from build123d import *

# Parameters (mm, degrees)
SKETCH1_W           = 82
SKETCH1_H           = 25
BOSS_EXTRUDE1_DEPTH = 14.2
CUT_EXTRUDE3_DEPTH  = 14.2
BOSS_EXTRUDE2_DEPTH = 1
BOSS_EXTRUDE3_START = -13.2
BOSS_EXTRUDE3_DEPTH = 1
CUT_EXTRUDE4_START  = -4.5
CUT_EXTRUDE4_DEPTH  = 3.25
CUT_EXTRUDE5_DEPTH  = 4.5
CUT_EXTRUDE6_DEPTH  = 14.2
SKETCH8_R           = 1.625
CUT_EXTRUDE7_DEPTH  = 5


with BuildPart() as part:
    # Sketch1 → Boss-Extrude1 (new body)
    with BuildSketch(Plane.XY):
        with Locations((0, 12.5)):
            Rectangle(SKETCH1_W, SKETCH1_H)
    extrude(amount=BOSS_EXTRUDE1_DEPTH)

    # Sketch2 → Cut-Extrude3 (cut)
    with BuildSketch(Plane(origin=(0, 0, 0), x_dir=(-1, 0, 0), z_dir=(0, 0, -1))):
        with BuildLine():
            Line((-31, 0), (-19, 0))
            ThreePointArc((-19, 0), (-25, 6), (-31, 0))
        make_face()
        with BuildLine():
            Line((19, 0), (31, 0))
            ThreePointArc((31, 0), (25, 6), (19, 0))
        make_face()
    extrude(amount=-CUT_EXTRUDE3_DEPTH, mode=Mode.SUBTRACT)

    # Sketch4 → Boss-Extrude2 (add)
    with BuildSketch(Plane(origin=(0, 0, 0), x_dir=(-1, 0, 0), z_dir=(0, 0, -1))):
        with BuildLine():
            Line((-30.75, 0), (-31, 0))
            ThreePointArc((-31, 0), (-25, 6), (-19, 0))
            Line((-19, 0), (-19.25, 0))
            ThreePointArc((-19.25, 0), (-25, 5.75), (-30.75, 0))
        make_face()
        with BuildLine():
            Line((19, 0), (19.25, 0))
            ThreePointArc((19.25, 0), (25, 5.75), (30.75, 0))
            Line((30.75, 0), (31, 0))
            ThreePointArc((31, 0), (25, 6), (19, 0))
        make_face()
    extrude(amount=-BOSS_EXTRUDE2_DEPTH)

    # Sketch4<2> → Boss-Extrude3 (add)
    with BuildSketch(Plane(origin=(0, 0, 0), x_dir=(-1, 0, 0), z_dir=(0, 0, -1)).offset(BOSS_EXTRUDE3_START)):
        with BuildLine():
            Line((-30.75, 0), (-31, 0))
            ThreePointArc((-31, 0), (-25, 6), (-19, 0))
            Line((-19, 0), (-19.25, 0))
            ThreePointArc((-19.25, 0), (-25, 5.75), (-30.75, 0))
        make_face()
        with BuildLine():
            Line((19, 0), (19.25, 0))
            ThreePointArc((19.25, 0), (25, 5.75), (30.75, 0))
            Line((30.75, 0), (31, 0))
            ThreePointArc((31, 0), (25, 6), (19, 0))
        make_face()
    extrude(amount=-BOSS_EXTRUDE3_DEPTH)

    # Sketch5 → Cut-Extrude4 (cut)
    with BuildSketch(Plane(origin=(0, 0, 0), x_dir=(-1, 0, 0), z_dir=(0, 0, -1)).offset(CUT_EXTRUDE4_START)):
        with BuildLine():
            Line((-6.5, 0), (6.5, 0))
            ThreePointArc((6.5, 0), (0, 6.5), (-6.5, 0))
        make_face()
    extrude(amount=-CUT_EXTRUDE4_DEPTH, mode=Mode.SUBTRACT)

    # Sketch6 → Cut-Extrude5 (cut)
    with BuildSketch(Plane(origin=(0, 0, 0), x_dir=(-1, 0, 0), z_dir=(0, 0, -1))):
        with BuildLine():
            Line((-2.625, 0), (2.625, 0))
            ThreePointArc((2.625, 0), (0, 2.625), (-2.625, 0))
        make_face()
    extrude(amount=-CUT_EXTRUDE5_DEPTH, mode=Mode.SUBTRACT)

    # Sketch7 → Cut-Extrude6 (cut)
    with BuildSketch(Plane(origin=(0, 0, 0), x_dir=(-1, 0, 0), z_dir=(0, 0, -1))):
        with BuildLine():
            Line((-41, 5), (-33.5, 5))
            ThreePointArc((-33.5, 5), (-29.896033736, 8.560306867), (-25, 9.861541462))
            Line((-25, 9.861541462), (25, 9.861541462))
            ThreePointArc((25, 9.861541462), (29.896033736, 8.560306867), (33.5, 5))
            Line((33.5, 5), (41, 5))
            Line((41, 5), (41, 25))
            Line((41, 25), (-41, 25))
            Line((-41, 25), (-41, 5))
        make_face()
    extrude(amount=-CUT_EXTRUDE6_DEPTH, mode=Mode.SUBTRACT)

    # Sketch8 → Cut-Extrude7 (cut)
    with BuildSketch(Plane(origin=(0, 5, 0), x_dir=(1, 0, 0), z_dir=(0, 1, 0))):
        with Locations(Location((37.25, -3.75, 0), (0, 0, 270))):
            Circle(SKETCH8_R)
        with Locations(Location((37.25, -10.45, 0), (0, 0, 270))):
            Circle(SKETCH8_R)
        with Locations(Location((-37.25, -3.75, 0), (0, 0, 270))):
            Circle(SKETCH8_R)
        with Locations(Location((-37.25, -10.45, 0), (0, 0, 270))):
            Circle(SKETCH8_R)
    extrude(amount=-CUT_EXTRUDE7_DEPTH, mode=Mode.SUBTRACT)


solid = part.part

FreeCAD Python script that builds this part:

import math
import FreeCAD as App
import Part
import Sketcher
from FreeCAD import Vector
Q = App.Units.Quantity


def add_polygon(sketch, points):
    """Adds a closed chain of lines whose ends are joined by coincident constraints."""
    first, n = sketch.GeometryCount, len(points)
    for a, b in zip(points, points[1:] + points[:1]):
        sketch.addGeometry(Part.LineSegment(App.Vector(*a, 0), App.Vector(*b, 0)), False)
    for i in range(n):
        sketch.addConstraint(Sketcher.Constraint("Coincident", first + i, 2, first + (i + 1) % n, 1))

doc = App.newDocument("Part")
body = doc.addObject("PartDesign::Body", "Body")

# Sketch on XY plane
sketch1 = body.newObject("Sketcher::SketchObject", "Sketch")
sketch1.AttachmentSupport = (doc.getObject("XY_Plane"), [""])
sketch1.MapMode = "FlatFace"
add_polygon(sketch1, [(-41, 25), (-41, 0), (41, 0), (41, 25)])  # lines 0-3
sketch1.addConstraint([
    Sketcher.Constraint("Vertical", 0),
    Sketcher.Constraint("Horizontal", 1),
    Sketcher.Constraint("Vertical", 2),
    Sketcher.Constraint("Horizontal", 3),
    Sketcher.Constraint("Symmetric", 0, 2, 1, 2, -1, 1),
    Sketcher.Constraint("DistanceX", 1, 1, 1, 2, Q("82 mm")),
    Sketcher.Constraint("DistanceY", 0, 2, 0, 1, Q("25 mm")),
])
pad1 = body.newObject("PartDesign::Pad", "Pad")
pad1.Profile = sketch1
pad1.Length = 14.2

# Sketch on XY plane
sketch2 = body.newObject("Sketcher::SketchObject", "Sketch001")
sketch2.AttachmentSupport = (doc.getObject("XY_Plane"), [""])
sketch2.MapMode = "FlatFace"
sketch2.addGeometry([
    Part.LineSegment(Vector(31, 0, 0), Vector(19, 0, 0)),
    Part.ArcOfCircle(Part.Circle(Vector(25, 0, 0), Vector(0, 0, 1), 6), math.radians(0), math.radians(180)),
    Part.LineSegment(Vector(-19, 0, 0), Vector(-31, 0, 0)),
    Part.ArcOfCircle(Part.Circle(Vector(-25, 0, 0), Vector(0, 0, 1), 6), math.radians(0), math.radians(180)),
], False)
sketch2.addConstraint([
    Sketcher.Constraint("Coincident", 0, 1, 1, 1),
    Sketcher.Constraint("Coincident", 1, 2, 0, 2),
    Sketcher.Constraint("Coincident", 2, 1, 3, 1),
    Sketcher.Constraint("Coincident", 3, 2, 2, 2),
    Sketcher.Constraint("Horizontal", 0),
    Sketcher.Constraint("Horizontal", 2),
    Sketcher.Constraint("Equal", 1, 3),
    Sketcher.Constraint("Symmetric", 1, 3, 3, 3, -1, 1),
    Sketcher.Constraint("PointOnObject", 1, 3, -1),
    Sketcher.Constraint("PointOnObject", 0, 1, -1),
    Sketcher.Constraint("PointOnObject", 2, 1, -1),
    Sketcher.Constraint("Radius", 1, Q("6 mm")),
    Sketcher.Constraint("DistanceX", -1, 1, 1, 3, Q("25 mm")),
])
pocket1 = body.newObject("PartDesign::Pocket", "Pocket")
pocket1.Profile = sketch2
pocket1.Length = 14.2
pocket1.Reversed = True

# Sketch on XY plane
sketch3 = body.newObject("Sketcher::SketchObject", "Sketch002")
sketch3.AttachmentSupport = (doc.getObject("XY_Plane"), [""])
sketch3.MapMode = "FlatFace"
sketch3.addGeometry([
    Part.LineSegment(Vector(31, 0, 0), Vector(30.75, 0, 0)),  # 0
    Part.ArcOfCircle(Part.Circle(Vector(25, 0, 0), Vector(0, 0, 1), 5.75), math.radians(0), math.radians(180)),  # 1
    Part.LineSegment(Vector(19.25, 0, 0), Vector(19, 0, 0)),  # 2
    Part.ArcOfCircle(Part.Circle(Vector(25, 0, 0), Vector(0, 0, 1), 6), math.radians(0), math.radians(180)),  # 3
    Part.LineSegment(Vector(-19, 0, 0), Vector(-19.25, 0, 0)),  # 4
    Part.ArcOfCircle(Part.Circle(Vector(-25, 0, 0), Vector(0, 0, 1), 5.75), math.radians(0), math.radians(180)),  # 5
    Part.LineSegment(Vector(-30.75, 0, 0), Vector(-31, 0, 0)),  # 6
    Part.ArcOfCircle(Part.Circle(Vector(-25, 0, 0), Vector(0, 0, 1), 6), math.radians(0), math.radians(180)),  # 7
], False)
sketch3.addConstraint([
    Sketcher.Constraint("Coincident", 0, 2, 1, 1),
    Sketcher.Constraint("Coincident", 1, 2, 2, 1),
    Sketcher.Constraint("Coincident", 2, 2, 3, 2),
    Sketcher.Constraint("Coincident", 3, 1, 0, 1),
    Sketcher.Constraint("Coincident", 4, 2, 5, 1),
    Sketcher.Constraint("Coincident", 5, 2, 6, 1),
    Sketcher.Constraint("Coincident", 6, 2, 7, 2),
    Sketcher.Constraint("Coincident", 7, 1, 4, 1),
    Sketcher.Constraint("Horizontal", 0),
    Sketcher.Constraint("Horizontal", 2),
    Sketcher.Constraint("Horizontal", 4),
    Sketcher.Constraint("Horizontal", 6),
    Sketcher.Constraint("Coincident", 3, 3, 1, 3),
    Sketcher.Constraint("Coincident", 7, 3, 5, 3),
    Sketcher.Constraint("Equal", 1, 5),
    Sketcher.Constraint("Equal", 3, 7),
    Sketcher.Constraint("Symmetric", 1, 3, 5, 3, -1, 1),
    Sketcher.Constraint("PointOnObject", 1, 3, -1),
    Sketcher.Constraint("PointOnObject", 0, 2, -1),
    Sketcher.Constraint("PointOnObject", 1, 2, -1),
    Sketcher.Constraint("PointOnObject", 4, 2, -1),
    Sketcher.Constraint("PointOnObject", 5, 2, -1),
    Sketcher.Constraint("Radius", 3, Q("6 mm")),
    Sketcher.Constraint("Radius", 1, Q("5.75 mm")),
    Sketcher.Constraint("DistanceX", -1, 1, 1, 3, Q("25 mm")),
])
pad2 = body.newObject("PartDesign::Pad", "Pad001")
pad2.Profile = sketch3
pad2.Length = 1

# Sketch on XY plane
sketch4 = body.newObject("Sketcher::SketchObject", "Sketch003")
sketch4.AttachmentSupport = (doc.getObject("XY_Plane"), [""])
sketch4.MapMode = "FlatFace"
sketch4.AttachmentOffset = App.Placement(Vector(0, 0, 13.2), App.Rotation())
sketch4.addGeometry([
    Part.LineSegment(Vector(31, 0, 0), Vector(30.75, 0, 0)),  # 0
    Part.ArcOfCircle(Part.Circle(Vector(25, 0, 0), Vector(0, 0, 1), 5.75), math.radians(0), math.radians(180)),  # 1
    Part.LineSegment(Vector(19.25, 0, 0), Vector(19, 0, 0)),  # 2
    Part.ArcOfCircle(Part.Circle(Vector(25, 0, 0), Vector(0, 0, 1), 6), math.radians(0), math.radians(180)),  # 3
    Part.LineSegment(Vector(-19, 0, 0), Vector(-19.25, 0, 0)),  # 4
    Part.ArcOfCircle(Part.Circle(Vector(-25, 0, 0), Vector(0, 0, 1), 5.75), math.radians(0), math.radians(180)),  # 5
    Part.LineSegment(Vector(-30.75, 0, 0), Vector(-31, 0, 0)),  # 6
    Part.ArcOfCircle(Part.Circle(Vector(-25, 0, 0), Vector(0, 0, 1), 6), math.radians(0), math.radians(180)),  # 7
], False)
sketch4.addConstraint([
    Sketcher.Constraint("Coincident", 0, 2, 1, 1),
    Sketcher.Constraint("Coincident", 1, 2, 2, 1),
    Sketcher.Constraint("Coincident", 2, 2, 3, 2),
    Sketcher.Constraint("Coincident", 3, 1, 0, 1),
    Sketcher.Constraint("Coincident", 4, 2, 5, 1),
    Sketcher.Constraint("Coincident", 5, 2, 6, 1),
    Sketcher.Constraint("Coincident", 6, 2, 7, 2),
    Sketcher.Constraint("Coincident", 7, 1, 4, 1),
    Sketcher.Constraint("Horizontal", 0),
    Sketcher.Constraint("Horizontal", 2),
    Sketcher.Constraint("Horizontal", 4),
    Sketcher.Constraint("Horizontal", 6),
    Sketcher.Constraint("Coincident", 3, 3, 1, 3),
    Sketcher.Constraint("Coincident", 7, 3, 5, 3),
    Sketcher.Constraint("Equal", 1, 5),
    Sketcher.Constraint("Equal", 3, 7),
    Sketcher.Constraint("Symmetric", 1, 3, 5, 3, -1, 1),
    Sketcher.Constraint("PointOnObject", 1, 3, -1),
    Sketcher.Constraint("PointOnObject", 0, 2, -1),
    Sketcher.Constraint("PointOnObject", 1, 2, -1),
    Sketcher.Constraint("PointOnObject", 4, 2, -1),
    Sketcher.Constraint("PointOnObject", 5, 2, -1),
    Sketcher.Constraint("Radius", 3, Q("6 mm")),
    Sketcher.Constraint("Radius", 1, Q("5.75 mm")),
    Sketcher.Constraint("DistanceX", -1, 1, 1, 3, Q("25 mm")),
])
pad3 = body.newObject("PartDesign::Pad", "Pad002")
pad3.Profile = sketch4
pad3.Length = 1

# Sketch on XY plane
sketch5 = body.newObject("Sketcher::SketchObject", "Sketch004")
sketch5.AttachmentSupport = (doc.getObject("XY_Plane"), [""])
sketch5.MapMode = "FlatFace"
sketch5.AttachmentOffset = App.Placement(Vector(0, 0, 4.5), App.Rotation())
sketch5.addGeometry([
    Part.LineSegment(Vector(6.5, 0, 0), Vector(-6.5, 0, 0)),
    Part.ArcOfCircle(Part.Circle(Vector(0, 0, 0), Vector(0, 0, 1), 6.5), math.radians(0), math.radians(180)),
], False)
sketch5.addConstraint([
    Sketcher.Constraint("Coincident", 0, 1, 1, 1),
    Sketcher.Constraint("Coincident", 1, 2, 0, 2),
    Sketcher.Constraint("Horizontal", 0),
    Sketcher.Constraint("Coincident", 1, 3, -1, 1),
    Sketcher.Constraint("PointOnObject", 0, 1, -1),
    Sketcher.Constraint("Radius", 1, Q("6.5 mm")),
])
pocket2 = body.newObject("PartDesign::Pocket", "Pocket001")
pocket2.Profile = sketch5
pocket2.Length = 3.25
pocket2.Reversed = True

# Sketch on XY plane
sketch6 = body.newObject("Sketcher::SketchObject", "Sketch005")
sketch6.AttachmentSupport = (doc.getObject("XY_Plane"), [""])
sketch6.MapMode = "FlatFace"
sketch6.addGeometry([
    Part.LineSegment(Vector(2.625, 0, 0), Vector(-2.625, 0, 0)),
    Part.ArcOfCircle(Part.Circle(Vector(0, 0, 0), Vector(0, 0, 1), 2.625), math.radians(0), math.radians(180)),
], False)
sketch6.addConstraint([
    Sketcher.Constraint("Coincident", 0, 1, 1, 1),
    Sketcher.Constraint("Coincident", 1, 2, 0, 2),
    Sketcher.Constraint("Horizontal", 0),
    Sketcher.Constraint("Coincident", 1, 3, -1, 1),
    Sketcher.Constraint("PointOnObject", 0, 1, -1),
    Sketcher.Constraint("Radius", 1, Q("2.625 mm")),
])
pocket3 = body.newObject("PartDesign::Pocket", "Pocket002")
pocket3.Profile = sketch6
pocket3.Length = 4.5
pocket3.Reversed = True

# Sketch on XY plane
sketch7 = body.newObject("Sketcher::SketchObject", "Sketch006")
sketch7.AttachmentSupport = (doc.getObject("XY_Plane"), [""])
sketch7.MapMode = "FlatFace"
sketch7.addGeometry([
    Part.LineSegment(Vector(41, 5, 0), Vector(33.5, 5, 0)),  # 0
    Part.ArcOfCircle(Part.Circle(Vector(25, 0, 0), Vector(0, 0, 1), 9.861541), math.radians(30.465545), math.radians(90)),  # 1
    Part.LineSegment(Vector(25, 9.861541, 0), Vector(-25, 9.861541, 0)),  # 2
    Part.ArcOfCircle(Part.Circle(Vector(-25, 0, 0), Vector(0, 0, 1), 9.861541), math.radians(90), math.radians(149.534455)),  # 3
    Part.LineSegment(Vector(-33.5, 5, 0), Vector(-41, 5, 0)),  # 4
    Part.LineSegment(Vector(-41, 5, 0), Vector(-41, 25, 0)),  # 5
    Part.LineSegment(Vector(-41, 25, 0), Vector(41, 25, 0)),  # 6
    Part.LineSegment(Vector(41, 25, 0), Vector(41, 5, 0)),  # 7
], False)
sketch7.addConstraint([
    Sketcher.Constraint("Coincident", 0, 2, 1, 1),
    Sketcher.Constraint("Tangent", 1, 2, 2, 1),
    Sketcher.Constraint("Tangent", 2, 2, 3, 1),
    Sketcher.Constraint("Coincident", 3, 2, 4, 1),
    Sketcher.Constraint("Coincident", 4, 2, 5, 1),
    Sketcher.Constraint("Coincident", 5, 2, 6, 1),
    Sketcher.Constraint("Coincident", 6, 2, 7, 1),
    Sketcher.Constraint("Coincident", 7, 2, 0, 1),
    Sketcher.Constraint("Horizontal", 0),
    Sketcher.Constraint("Horizontal", 2),
    Sketcher.Constraint("Horizontal", 4),
    Sketcher.Constraint("Vertical", 5),
    Sketcher.Constraint("Horizontal", 6),
    Sketcher.Constraint("Vertical", 7),
    Sketcher.Constraint("Equal", 1, 3),
    Sketcher.Constraint("Symmetric", 1, 3, 3, 3, -1, 1),
    Sketcher.Constraint("Symmetric", 4, 2, 7, 2, -2),
    Sketcher.Constraint("DistanceX", 2, 2, 2, 1, Q("50 mm")),
    Sketcher.Constraint("DistanceX", 6, 1, 6, 2, Q("82 mm")),
    Sketcher.Constraint("DistanceY", 5, 1, 5, 2, Q("20 mm")),
    Sketcher.Constraint("DistanceX", 0, 2, 0, 1, Q("7.5 mm")),
    Sketcher.Constraint("DistanceY", -1, 1, 0, 2, Q("5 mm")),
])
pocket4 = body.newObject("PartDesign::Pocket", "Pocket003")
pocket4.Profile = sketch7
pocket4.Length = 14.2
pocket4.Reversed = True

# Sketch on XZ plane
sketch8 = body.newObject("Sketcher::SketchObject", "Sketch007")
sketch8.AttachmentSupport = (doc.getObject("XZ_Plane"), [""])
sketch8.MapMode = "FlatFace"
sketch8.AttachmentOffset = App.Placement(Vector(0, 0, -5), App.Rotation())
sketch8.addGeometry([
    Part.Circle(Vector(37.25, 3.75, 0), Vector(0, 0, 1), 1.625),
    Part.Circle(Vector(37.25, 10.45, 0), Vector(0, 0, 1), 1.625),
    Part.Circle(Vector(-37.25, 3.75, 0), Vector(0, 0, 1), 1.625),
    Part.Circle(Vector(-37.25, 10.45, 0), Vector(0, 0, 1), 1.625),
], False)
sketch8.addConstraint([
    Sketcher.Constraint("Equal", 0, 1),
    Sketcher.Constraint("Equal", 1, 2),
    Sketcher.Constraint("Equal", 2, 3),
    Sketcher.Constraint("Symmetric", 0, 3, 2, 3, -2),
    Sketcher.Constraint("Symmetric", 1, 3, 3, 3, -2),
    Sketcher.Constraint("Vertical", 0, 3, 1, 3),
    Sketcher.Constraint("Diameter", 0, Q("3.25 mm")),
    Sketcher.Constraint("DistanceY", 0, 3, 1, 3, Q("6.7 mm")),
    Sketcher.Constraint("DistanceX", 2, 3, 0, 3, Q("74.5 mm")),
    Sketcher.Constraint("DistanceY", -1, 1, 0, 3, Q("3.75 mm")),
])
pocket5 = body.newObject("PartDesign::Pocket", "Pocket004")
pocket5.Profile = sketch8
pocket5.Length = 5
pocket5.Reversed = True

doc.recompute()
